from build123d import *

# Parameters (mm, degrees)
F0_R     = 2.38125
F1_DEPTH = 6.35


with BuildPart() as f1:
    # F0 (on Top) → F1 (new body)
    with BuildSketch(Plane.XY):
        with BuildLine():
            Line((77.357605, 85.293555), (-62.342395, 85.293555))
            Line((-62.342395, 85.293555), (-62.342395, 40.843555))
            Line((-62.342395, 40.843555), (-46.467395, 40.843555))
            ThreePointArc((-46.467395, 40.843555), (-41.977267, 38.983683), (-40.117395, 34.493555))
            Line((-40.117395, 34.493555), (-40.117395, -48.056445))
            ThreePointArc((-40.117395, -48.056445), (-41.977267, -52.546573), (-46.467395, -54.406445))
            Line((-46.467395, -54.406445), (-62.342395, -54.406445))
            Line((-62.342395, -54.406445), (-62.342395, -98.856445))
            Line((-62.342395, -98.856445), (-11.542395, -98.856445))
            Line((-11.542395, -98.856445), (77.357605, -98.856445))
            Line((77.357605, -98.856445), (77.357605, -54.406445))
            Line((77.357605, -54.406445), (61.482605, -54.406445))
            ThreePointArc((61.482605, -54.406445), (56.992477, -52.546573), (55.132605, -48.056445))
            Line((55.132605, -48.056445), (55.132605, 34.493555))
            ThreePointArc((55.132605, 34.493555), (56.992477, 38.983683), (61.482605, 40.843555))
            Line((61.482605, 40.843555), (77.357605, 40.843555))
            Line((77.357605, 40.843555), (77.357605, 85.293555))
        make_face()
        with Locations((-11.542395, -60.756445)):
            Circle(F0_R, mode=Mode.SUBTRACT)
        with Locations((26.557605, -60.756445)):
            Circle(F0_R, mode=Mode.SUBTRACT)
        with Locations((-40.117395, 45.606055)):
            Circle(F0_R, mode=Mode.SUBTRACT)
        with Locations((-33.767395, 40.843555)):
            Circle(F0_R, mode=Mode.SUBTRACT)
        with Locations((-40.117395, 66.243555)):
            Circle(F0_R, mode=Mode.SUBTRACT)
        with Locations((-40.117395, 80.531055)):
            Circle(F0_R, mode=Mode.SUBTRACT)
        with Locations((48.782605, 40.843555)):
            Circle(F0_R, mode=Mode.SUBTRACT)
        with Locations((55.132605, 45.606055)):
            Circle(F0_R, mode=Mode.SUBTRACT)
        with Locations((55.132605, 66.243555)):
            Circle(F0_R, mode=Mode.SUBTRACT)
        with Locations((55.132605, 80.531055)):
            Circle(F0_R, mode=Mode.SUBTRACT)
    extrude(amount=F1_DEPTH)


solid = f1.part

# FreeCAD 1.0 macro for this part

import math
import FreeCAD as App
import Part
import Sketcher
from FreeCAD import Vector
Q = App.Units.Quantity

doc = App.newDocument("Part")
body = doc.addObject("PartDesign::Body", "Body")

# Sketch on XY plane
sketch1 = body.newObject("Sketcher::SketchObject", "Sketch")
sketch1.AttachmentSupport = (doc.getObject("XY_Plane"), [""])
sketch1.MapMode = "FlatFace"
sketch1.addGeometry(Part.LineSegment(Vector(77.4, 85.3, 0), Vector(-62.3, 85.3, 0)), False)
sketch1.addGeometry(Part.LineSegment(Vector(-62.3, 85.3, 0), Vector(-62.3, 40.8, 0)), False)
sketch1.addGeometry(Part.LineSegment(Vector(-62.3, 40.8, 0), Vector(-46.5, 40.8, 0)), False)
sketch1.addGeometry(Part.ArcOfCircle(Part.Circle(Vector(-46.5, 34.5, 0), Vector(0, 0, 1), 6.4), math.radians(0), math.radians(90)), False)
sketch1.addGeometry(Part.LineSegment(Vector(-40.1, 34.5, 0), Vector(-40.1, -48.1, 0)), False)
sketch1.addGeometry(Part.ArcOfCircle(Part.Circle(Vector(-46.5, -48.1, 0), Vector(0, 0, 1), 6.4), math.radians(-90), math.radians(0)), False)
sketch1.addGeometry(Part.LineSegment(Vector(-46.5, -54.4, 0), Vector(-62.3, -54.4, 0)), False)
sketch1.addGeometry(Part.LineSegment(Vector(-62.3, -54.4, 0), Vector(-62.3, -98.9, 0)), False)
sketch1.addGeometry(Part.LineSegment(Vector(-62.3, -98.9, 0), Vector(77.4, -98.9, 0)), False)
sketch1.addGeometry(Part.LineSegment(Vector(77.4, -98.9, 0), Vector(77.4, -54.4, 0)), False)
sketch1.addGeometry(Part.LineSegment(Vector(77.4, -54.4, 0), Vector(61.5, -54.4, 0)), False)
sketch1.addGeometry(Part.ArcOfCircle(Part.Circle(Vector(61.5, -48.1, 0), Vector(0, 0, 1), 6.4), math.radians(-180), math.radians(-90)), False)
sketch1.addGeometry(Part.LineSegment(Vector(55.1, -48.1, 0), Vector(55.1, 34.5, 0)), False)
sketch1.addGeometry(Part.ArcOfCircle(Part.Circle(Vector(61.5, 34.5, 0), Vector(0, 0, 1), 6.4), math.radians(90), math.radians(180)), False)
sketch1.addGeometry(Part.LineSegment(Vector(61.5, 40.8, 0), Vector(77.4, 40.8, 0)), False)
sketch1.addGeometry(Part.LineSegment(Vector(77.4, 40.8, 0), Vector(77.4, 85.3, 0)), False)
sketch1.addGeometry(Part.Circle(Vector(-11.5, -60.8, 0), Vector(0, 0, 1), 2.4), False)
sketch1.addGeometry(Part.Circle(Vector(26.6, -60.8, 0), Vector(0, 0, 1), 2.4), False)
sketch1.addGeometry(Part.Circle(Vector(-40.1, 45.6, 0), Vector(0, 0, 1), 2.4), False)
sketch1.addGeometry(Part.Circle(Vector(-33.8, 40.8, 0), Vector(0, 0, 1), 2.4), False)
sketch1.addGeometry(Part.Circle(Vector(-40.1, 66.2, 0), Vector(0, 0, 1), 2.4), False)
sketch1.addGeometry(Part.Circle(Vector(-40.1, 80.5, 0), Vector(0, 0, 1), 2.4), False)
sketch1.addGeometry(Part.Circle(Vector(48.8, 40.8, 0), Vector(0, 0, 1), 2.4), False)
sketch1.addGeometry(Part.Circle(Vector(55.1, 45.6, 0), Vector(0, 0, 1), 2.4), False)
sketch1.addGeometry(Part.Circle(Vector(55.1, 66.2, 0), Vector(0, 0, 1), 2.4), False)
sketch1.addGeometry(Part.Circle(Vector(55.1, 80.5, 0), Vector(0, 0, 1), 2.4), False)
sketch1.addConstraint(Sketcher.Constraint("Coincident", 0, 2, 1, 1))
sketch1.addConstraint(Sketcher.Constraint("Coincident", 1, 2, 2, 1))
sketch1.addConstraint(Sketcher.Constraint("Tangent", 2, 2, 3, 2))
sketch1.addConstraint(Sketcher.Constraint("Tangent", 3, 1, 4, 1))
sketch1.addConstraint(Sketcher.Constraint("Tangent", 4, 2, 5, 2))
sketch1.addConstraint(Sketcher.Constraint("Tangent", 5, 1, 6, 1))
sketch1.addConstraint(Sketcher.Constraint("Coincident", 6, 2, 7, 1))
sketch1.addConstraint(Sketcher.Constraint("Coincident", 7, 2, 8, 1))
sketch1.addConstraint(Sketcher.Constraint("Coincident", 8, 2, 9, 1))
sketch1.addConstraint(Sketcher.Constraint("Coincident", 9, 2, 10, 1))
sketch1.addConstraint(Sketcher.Constraint("Tangent", 10, 2, 11, 2))
sketch1.addConstraint(Sketcher.Constraint("Tangent", 11, 1, 12, 1))
sketch1.addConstraint(Sketcher.Constraint("Tangent", 12, 2, 13, 2))
sketch1.addConstraint(Sketcher.Constraint("Tangent", 13, 1, 14, 1))
sketch1.addConstraint(Sketcher.Constraint("Coincident", 14, 2, 15, 1))
sketch1.addConstraint(Sketcher.Constraint("Coincident", 15, 2, 0, 1))
sketch1.addConstraint(Sketcher.Constraint("Horizontal", 0))
sketch1.addConstraint(Sketcher.Constraint("Vertical", 1))
sketch1.addConstraint(Sketcher.Constraint("Horizontal", 2))
sketch1.addConstraint(Sketcher.Constraint("Vertical", 4))
sketch1.addConstraint(Sketcher.Constraint("Horizontal", 6))
sketch1.addConstraint(Sketcher.Constraint("Vertical", 7))
sketch1.addConstraint(Sketcher.Constraint("Horizontal", 8))
sketch1.addConstraint(Sketcher.Constraint("Vertical", 9))
sketch1.addConstraint(Sketcher.Constraint("Horizontal", 10))
sketch1.addConstraint(Sketcher.Constraint("Vertical", 12))
sketch1.addConstraint(Sketcher.Constraint("Horizontal", 14))
sketch1.addConstraint(Sketcher.Constraint("Vertical", 15))
sketch1.addConstraint(Sketcher.Constraint("Equal", 3, 5))
sketch1.addConstraint(Sketcher.Constraint("Equal", 5, 11))
sketch1.addConstraint(Sketcher.Constraint("Equal", 11, 13))
sketch1.addConstraint(Sketcher.Constraint("Equal", 16, 17))
sketch1.addConstraint(Sketcher.Constraint("Equal", 17, 18))
sketch1.addConstraint(Sketcher.Constraint("Equal", 18, 19))
sketch1.addConstraint(Sketcher.Constraint("Equal", 19, 20))
sketch1.addConstraint(Sketcher.Constraint("Equal", 20, 21))
sketch1.addConstraint(Sketcher.Constraint("Equal", 21, 22))
sketch1.addConstraint(Sketcher.Constraint("Equal", 22, 23))
sketch1.addConstraint(Sketcher.Constraint("Equal", 23, 24))
sketch1.addConstraint(Sketcher.Constraint("Equal", 24, 25))
sketch1.addConstraint(Sketcher.Constraint("Horizontal", 5, 3, 11, 3))
sketch1.addConstraint(Sketcher.Constraint("Horizontal", 3, 3, 13, 3))
sketch1.addConstraint(Sketcher.Constraint("Horizontal", 16, 3, 17, 3))
sketch1.addConstraint(Sketcher.Constraint("Horizontal", 19, 3, 22, 3))
sketch1.addConstraint(Sketcher.Constraint("Horizontal", 18, 3, 23, 3))
sketch1.addConstraint(Sketcher.Constraint("Horizontal", 20, 3, 24, 3))
sketch1.addConstraint(Sketcher.Constraint("Horizontal", 21, 3, 25, 3))
sketch1.addConstraint(Sketcher.Constraint("Horizontal", 22, 3, 1, 2))
sketch1.addConstraint(Sketcher.Constraint("Vertical", 18, 3, 20, 3))
sketch1.addConstraint(Sketcher.Constraint("Vertical", 20, 3, 21, 3))
sketch1.addConstraint(Sketcher.Constraint("Vertical", 23, 3, 24, 3))
sketch1.addConstraint(Sketcher.Constraint("Vertical", 24, 3, 25, 3))
sketch1.addConstraint(Sketcher.Constraint("Vertical", 21, 3, 3, 1))
sketch1.addConstraint(Sketcher.Constraint("Vertical", 1, 2, 6, 2))
sketch1.addConstraint(Sketcher.Constraint("Vertical", 25, 3, 11, 1))
sketch1.addConstraint(Sketcher.Constraint("Vertical", 9, 2, 14, 2))
sketch1.addConstraint(Sketcher.Constraint("Equal", 6, 10))
sketch1.addConstraint(Sketcher.Constraint("Equal", 1, 7))
sketch1.addConstraint(Sketcher.Constraint("Radius", 3, Q("0.25 in")))
sketch1.addConstraint(Sketcher.Constraint("Diameter", 16, Q("0.1875 in")))
sketch1.addConstraint(Sketcher.Constraint("DistanceX", 0, 2, 0, 1, Q("5.5 in")))
sketch1.addConstraint(Sketcher.Constraint("DistanceX", 18, 3, 13, 3, Q("4 in")))
sketch1.addConstraint(Sketcher.Constraint("DistanceY", 16, 3, 19, 3, Q("4 in")))
sketch1.addConstraint(Sketcher.Constraint("DistanceY", 19, 3, 20, 3, Q("1 in")))
sketch1.addConstraint(Sketcher.Constraint("DistanceY", 3, 3, 0, 2, Q("2 in")))
sketch1.addConstraint(Sketcher.Constraint("DistanceX", 6, 2, 16, 3, Q("2 in")))
sketch1.addConstraint(Sketcher.Constraint("DistanceX", 17, 3, 8, 2, Q("2 in")))
sketch1.addConstraint(Sketcher.Constraint("DistanceY", 4, 2, 4, 1, Q("3.25 in")))
sketch1.addConstraint(Sketcher.Constraint("DistanceX", 3, 3, 19, 3, Q("0.5 in")))
sketch1.addConstraint(Sketcher.Constraint("DistanceX", 22, 3, 13, 3, Q("0.5 in")))
sketch1.addConstraint(Sketcher.Constraint("DistanceY", 3, 3, 18, 3, Q("0.4375 in")))
sketch1.addConstraint(Sketcher.Constraint("DistanceY", 20, 3, 21, 3, Q("0.5625 in")))
sketch1.addConstraint(Sketcher.Constraint("DistanceX", 3, 3, -1, 1, 46.467395))
sketch1.addConstraint(Sketcher.Constraint("DistanceY", -1, 1, 3, 3, 34.493555))
pad1 = body.newObject("PartDesign::Pad", "Pad")
pad1.Profile = sketch1
pad1.Length = Q("0.25 in")

doc.recompute()
